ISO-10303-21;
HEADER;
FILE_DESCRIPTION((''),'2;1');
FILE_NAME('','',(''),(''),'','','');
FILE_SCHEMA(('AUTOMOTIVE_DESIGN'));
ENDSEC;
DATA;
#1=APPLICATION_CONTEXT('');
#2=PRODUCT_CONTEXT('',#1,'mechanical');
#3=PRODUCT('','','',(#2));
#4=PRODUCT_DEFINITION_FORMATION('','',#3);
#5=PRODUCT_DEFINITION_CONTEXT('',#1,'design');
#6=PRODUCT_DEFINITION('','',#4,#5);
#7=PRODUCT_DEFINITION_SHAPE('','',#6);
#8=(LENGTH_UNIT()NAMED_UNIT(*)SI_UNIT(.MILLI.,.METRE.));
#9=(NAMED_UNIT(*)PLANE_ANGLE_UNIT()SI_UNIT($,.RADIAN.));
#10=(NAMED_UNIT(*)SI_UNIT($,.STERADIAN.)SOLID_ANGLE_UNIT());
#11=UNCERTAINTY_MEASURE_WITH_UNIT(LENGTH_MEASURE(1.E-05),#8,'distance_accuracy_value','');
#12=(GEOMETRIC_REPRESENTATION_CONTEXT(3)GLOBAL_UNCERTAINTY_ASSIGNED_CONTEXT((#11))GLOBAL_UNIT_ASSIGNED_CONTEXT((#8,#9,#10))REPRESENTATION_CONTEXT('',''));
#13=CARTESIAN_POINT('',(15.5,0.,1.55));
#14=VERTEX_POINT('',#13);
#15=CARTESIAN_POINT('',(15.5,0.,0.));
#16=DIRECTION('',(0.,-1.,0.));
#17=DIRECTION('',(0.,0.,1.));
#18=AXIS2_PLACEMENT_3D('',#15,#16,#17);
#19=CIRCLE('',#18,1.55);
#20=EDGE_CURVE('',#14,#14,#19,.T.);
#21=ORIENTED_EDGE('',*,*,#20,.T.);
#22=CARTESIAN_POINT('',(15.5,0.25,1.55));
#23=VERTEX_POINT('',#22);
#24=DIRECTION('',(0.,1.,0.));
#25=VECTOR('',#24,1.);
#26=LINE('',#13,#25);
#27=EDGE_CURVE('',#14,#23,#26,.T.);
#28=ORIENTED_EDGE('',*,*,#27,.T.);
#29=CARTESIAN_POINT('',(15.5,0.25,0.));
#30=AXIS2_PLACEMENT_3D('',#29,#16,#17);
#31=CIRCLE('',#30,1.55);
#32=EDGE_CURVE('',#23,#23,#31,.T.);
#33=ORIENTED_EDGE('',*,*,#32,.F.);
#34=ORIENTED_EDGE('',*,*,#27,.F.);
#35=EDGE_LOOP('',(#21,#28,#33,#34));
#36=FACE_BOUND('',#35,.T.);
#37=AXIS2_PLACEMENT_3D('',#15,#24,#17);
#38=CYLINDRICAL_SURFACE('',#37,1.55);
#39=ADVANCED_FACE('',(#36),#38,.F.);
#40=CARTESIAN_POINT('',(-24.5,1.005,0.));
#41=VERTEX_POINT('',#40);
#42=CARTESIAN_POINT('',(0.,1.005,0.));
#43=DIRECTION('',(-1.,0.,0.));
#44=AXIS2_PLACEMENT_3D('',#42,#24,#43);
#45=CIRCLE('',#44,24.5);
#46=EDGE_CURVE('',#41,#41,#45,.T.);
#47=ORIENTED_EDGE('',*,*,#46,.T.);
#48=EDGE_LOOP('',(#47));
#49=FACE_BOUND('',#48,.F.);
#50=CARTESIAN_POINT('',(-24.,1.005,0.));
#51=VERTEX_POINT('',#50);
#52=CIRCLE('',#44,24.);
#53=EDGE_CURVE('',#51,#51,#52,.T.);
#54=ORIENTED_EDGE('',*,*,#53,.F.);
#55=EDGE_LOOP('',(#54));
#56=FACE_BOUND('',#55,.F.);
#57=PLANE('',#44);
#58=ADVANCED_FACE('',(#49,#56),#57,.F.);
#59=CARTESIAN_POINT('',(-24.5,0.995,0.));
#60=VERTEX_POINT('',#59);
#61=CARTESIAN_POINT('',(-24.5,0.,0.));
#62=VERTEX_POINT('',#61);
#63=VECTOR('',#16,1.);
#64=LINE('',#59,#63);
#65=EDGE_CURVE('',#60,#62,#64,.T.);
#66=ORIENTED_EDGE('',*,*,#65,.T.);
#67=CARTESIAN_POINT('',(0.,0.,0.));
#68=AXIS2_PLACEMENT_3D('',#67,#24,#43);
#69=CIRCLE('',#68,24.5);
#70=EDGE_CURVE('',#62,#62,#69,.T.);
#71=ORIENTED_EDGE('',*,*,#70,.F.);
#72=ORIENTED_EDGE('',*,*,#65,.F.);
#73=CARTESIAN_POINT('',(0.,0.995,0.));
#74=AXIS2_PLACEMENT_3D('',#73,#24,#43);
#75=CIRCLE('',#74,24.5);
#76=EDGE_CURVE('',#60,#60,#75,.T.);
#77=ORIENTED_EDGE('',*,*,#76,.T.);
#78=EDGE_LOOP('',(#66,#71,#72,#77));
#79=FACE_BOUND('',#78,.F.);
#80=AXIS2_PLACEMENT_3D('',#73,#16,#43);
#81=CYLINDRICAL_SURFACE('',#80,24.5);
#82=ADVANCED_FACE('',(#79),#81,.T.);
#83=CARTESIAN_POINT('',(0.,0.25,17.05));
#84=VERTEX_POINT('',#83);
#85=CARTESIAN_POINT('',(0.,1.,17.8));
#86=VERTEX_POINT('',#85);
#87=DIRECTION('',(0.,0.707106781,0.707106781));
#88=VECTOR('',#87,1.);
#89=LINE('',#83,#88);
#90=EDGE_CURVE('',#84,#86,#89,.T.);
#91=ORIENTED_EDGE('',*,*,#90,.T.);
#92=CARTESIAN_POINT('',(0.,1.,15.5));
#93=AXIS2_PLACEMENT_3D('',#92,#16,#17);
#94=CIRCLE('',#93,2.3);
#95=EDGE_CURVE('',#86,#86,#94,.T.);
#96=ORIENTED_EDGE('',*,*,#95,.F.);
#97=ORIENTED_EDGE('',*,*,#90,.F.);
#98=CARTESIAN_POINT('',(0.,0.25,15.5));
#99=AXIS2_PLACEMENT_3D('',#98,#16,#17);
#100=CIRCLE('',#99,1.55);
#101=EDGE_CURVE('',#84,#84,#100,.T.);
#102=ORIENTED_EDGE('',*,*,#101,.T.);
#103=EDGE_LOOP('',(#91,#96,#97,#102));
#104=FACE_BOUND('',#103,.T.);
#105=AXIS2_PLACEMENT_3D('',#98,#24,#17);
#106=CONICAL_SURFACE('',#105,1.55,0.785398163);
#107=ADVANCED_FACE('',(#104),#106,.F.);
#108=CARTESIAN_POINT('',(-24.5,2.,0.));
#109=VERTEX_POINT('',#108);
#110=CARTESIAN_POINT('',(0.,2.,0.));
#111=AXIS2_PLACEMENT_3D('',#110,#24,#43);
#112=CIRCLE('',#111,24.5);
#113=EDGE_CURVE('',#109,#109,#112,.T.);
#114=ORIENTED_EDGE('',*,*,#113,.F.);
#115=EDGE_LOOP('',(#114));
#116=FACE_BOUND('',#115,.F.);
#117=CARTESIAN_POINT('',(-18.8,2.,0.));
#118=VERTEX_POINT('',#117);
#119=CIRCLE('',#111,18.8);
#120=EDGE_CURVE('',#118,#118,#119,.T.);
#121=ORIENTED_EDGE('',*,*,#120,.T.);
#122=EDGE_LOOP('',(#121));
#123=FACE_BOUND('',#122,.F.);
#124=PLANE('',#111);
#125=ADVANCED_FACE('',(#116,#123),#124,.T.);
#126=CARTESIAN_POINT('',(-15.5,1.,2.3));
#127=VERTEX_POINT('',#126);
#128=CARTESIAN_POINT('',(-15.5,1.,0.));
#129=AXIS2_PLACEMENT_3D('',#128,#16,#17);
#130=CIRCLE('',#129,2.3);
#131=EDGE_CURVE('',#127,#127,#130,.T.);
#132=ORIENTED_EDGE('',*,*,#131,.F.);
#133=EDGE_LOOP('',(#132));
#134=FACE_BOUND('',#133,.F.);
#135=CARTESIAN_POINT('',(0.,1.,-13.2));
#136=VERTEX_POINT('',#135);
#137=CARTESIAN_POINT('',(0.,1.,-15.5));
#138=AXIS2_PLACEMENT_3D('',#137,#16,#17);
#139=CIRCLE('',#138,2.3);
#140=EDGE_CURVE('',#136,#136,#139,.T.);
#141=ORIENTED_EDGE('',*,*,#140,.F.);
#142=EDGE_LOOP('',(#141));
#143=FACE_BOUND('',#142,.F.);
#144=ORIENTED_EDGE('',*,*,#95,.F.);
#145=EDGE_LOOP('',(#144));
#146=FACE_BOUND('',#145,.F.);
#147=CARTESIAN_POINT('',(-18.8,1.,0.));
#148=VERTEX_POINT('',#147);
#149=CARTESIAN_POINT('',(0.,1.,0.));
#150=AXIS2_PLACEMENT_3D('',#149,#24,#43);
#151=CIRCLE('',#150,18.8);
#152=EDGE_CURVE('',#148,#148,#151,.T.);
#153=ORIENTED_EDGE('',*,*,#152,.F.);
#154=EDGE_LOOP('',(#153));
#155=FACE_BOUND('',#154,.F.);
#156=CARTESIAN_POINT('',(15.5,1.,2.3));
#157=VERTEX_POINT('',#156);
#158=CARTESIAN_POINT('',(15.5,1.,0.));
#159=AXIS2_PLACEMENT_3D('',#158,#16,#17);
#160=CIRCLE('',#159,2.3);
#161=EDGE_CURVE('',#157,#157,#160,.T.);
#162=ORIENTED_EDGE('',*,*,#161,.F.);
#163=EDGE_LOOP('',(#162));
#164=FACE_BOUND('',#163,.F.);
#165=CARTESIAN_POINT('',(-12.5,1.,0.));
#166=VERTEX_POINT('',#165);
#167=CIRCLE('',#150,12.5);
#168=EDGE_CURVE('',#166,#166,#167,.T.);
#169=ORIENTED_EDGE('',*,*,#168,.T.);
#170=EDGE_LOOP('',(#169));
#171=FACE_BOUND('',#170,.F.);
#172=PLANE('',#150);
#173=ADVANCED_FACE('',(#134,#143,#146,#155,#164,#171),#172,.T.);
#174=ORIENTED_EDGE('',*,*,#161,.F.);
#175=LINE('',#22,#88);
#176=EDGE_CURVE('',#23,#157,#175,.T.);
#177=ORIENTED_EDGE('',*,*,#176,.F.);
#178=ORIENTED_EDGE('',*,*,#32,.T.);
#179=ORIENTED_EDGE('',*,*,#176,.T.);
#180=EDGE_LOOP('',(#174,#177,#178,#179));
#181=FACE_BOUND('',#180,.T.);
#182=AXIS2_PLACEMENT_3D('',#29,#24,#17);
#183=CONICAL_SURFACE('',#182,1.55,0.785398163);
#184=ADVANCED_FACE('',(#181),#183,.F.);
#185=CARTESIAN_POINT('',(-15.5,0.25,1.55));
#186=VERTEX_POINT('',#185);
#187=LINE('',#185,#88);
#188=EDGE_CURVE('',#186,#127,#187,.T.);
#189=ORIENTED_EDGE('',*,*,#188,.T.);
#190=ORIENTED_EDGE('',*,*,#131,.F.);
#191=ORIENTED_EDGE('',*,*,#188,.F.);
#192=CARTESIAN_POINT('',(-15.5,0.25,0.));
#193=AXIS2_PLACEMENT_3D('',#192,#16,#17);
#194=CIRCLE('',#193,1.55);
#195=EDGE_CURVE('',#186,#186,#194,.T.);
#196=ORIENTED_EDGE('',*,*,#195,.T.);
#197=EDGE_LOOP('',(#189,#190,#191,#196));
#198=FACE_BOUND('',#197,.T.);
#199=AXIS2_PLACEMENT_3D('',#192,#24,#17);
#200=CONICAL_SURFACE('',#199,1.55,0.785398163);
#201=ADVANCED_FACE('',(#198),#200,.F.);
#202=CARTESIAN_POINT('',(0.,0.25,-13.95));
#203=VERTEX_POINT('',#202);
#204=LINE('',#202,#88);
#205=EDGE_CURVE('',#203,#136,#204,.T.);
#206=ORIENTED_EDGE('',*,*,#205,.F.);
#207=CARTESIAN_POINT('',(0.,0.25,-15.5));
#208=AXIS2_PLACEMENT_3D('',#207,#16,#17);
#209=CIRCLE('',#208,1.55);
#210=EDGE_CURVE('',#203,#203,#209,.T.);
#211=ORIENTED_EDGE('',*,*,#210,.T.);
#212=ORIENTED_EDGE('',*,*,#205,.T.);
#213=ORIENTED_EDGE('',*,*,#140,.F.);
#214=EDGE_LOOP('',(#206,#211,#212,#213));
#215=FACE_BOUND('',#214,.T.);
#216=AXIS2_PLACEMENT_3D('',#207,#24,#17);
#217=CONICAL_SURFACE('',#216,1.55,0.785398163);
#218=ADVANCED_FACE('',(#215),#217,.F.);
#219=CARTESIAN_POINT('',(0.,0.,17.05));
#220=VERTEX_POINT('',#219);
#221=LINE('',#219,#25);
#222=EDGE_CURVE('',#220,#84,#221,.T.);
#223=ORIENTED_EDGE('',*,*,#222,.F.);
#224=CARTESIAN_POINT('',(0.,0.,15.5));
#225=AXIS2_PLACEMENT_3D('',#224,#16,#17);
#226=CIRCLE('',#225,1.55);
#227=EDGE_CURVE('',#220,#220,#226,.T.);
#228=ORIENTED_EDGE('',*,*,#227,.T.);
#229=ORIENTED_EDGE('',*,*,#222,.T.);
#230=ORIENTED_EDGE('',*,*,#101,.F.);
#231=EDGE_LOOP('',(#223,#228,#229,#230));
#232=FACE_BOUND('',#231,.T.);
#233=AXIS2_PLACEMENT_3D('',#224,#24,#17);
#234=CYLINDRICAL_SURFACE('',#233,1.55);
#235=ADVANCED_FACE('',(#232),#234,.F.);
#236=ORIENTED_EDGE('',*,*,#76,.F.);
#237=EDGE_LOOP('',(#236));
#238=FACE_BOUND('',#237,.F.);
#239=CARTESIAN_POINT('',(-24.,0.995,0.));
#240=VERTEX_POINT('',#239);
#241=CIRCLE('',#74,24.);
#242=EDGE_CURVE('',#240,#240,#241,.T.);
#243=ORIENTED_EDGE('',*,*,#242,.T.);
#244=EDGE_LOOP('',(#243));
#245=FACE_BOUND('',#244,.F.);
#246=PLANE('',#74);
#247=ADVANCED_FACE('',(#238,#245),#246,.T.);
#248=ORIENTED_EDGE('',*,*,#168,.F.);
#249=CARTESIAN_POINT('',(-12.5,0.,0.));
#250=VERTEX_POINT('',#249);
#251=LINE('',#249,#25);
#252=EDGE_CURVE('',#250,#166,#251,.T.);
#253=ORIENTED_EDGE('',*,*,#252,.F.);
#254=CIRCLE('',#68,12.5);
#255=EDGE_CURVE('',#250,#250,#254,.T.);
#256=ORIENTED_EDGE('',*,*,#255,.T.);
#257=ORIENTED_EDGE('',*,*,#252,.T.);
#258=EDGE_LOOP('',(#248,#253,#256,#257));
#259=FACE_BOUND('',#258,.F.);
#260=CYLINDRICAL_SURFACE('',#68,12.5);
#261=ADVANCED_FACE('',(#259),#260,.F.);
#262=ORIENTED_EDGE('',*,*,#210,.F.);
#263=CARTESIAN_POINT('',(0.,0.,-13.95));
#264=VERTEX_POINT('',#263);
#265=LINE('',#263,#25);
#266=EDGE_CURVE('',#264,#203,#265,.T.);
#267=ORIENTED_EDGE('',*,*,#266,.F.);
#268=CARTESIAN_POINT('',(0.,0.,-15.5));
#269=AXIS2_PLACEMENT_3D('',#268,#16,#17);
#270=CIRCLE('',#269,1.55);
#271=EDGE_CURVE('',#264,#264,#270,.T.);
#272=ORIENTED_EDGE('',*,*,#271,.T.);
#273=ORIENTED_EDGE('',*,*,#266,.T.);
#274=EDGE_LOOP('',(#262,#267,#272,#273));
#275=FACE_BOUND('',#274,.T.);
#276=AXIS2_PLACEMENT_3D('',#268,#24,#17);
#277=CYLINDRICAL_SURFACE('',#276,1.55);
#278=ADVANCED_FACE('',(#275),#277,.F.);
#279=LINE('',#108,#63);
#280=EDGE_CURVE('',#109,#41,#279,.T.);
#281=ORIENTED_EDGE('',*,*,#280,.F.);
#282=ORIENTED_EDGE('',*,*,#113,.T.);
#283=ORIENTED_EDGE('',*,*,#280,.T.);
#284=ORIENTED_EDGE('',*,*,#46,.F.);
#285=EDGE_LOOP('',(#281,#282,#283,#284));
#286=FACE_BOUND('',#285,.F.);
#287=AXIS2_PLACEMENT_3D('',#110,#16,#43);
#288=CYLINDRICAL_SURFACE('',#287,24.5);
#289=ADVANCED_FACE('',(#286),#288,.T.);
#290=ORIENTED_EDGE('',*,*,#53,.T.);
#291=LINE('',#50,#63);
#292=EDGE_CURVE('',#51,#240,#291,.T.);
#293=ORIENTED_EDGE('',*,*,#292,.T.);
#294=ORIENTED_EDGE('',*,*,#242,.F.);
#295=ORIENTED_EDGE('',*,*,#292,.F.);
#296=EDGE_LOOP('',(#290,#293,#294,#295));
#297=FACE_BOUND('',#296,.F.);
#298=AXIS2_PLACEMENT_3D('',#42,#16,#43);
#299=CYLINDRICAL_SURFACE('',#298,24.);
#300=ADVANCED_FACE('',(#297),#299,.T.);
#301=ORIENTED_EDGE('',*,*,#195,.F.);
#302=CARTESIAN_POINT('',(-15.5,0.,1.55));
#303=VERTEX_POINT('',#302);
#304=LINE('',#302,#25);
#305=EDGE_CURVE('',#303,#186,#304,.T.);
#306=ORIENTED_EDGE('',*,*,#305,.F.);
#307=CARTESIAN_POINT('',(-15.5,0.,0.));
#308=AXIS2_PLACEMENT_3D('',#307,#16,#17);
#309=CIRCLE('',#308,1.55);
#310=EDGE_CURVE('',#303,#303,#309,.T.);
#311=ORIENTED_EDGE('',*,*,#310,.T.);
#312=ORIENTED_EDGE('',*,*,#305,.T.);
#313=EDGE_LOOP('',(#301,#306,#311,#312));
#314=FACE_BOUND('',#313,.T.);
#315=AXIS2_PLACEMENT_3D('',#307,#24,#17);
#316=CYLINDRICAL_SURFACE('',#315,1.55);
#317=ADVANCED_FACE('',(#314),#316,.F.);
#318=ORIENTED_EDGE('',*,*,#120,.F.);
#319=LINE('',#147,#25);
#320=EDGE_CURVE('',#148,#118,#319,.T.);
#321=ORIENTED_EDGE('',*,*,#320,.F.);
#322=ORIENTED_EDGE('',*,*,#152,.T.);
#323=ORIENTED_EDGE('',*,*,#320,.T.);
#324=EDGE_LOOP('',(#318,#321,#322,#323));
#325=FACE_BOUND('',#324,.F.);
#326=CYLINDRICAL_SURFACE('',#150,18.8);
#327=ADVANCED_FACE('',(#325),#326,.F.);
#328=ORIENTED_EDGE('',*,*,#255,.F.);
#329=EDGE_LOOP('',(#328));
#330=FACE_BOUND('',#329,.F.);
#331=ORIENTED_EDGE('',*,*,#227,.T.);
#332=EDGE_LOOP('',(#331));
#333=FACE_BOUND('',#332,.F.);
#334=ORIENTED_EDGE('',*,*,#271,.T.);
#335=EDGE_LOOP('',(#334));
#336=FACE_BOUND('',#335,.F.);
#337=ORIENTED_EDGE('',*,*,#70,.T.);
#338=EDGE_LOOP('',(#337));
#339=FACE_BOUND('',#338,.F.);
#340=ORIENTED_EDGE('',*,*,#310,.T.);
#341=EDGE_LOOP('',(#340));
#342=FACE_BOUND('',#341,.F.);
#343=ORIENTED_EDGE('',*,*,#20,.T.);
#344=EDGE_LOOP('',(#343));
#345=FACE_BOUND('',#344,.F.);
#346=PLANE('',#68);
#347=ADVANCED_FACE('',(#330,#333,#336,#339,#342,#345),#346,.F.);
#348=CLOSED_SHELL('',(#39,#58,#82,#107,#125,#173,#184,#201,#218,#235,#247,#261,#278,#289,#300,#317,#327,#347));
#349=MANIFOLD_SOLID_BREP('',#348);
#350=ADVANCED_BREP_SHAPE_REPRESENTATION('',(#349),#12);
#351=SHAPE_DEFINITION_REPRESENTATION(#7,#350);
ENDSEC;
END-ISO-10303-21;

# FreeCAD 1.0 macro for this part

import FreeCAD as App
import Part
import Sketcher

V = App.Vector
Q = App.Units.Quantity

doc = App.newDocument("Part")
body = doc.addObject("PartDesign::Body", "Body")

# Sketch on XY plane
sketch1 = body.newObject("Sketcher::SketchObject", "Sketch")
sketch1.AttachmentSupport = (doc.getObject("XY_Plane"), [""])
sketch1.MapMode = "FlatFace"
sketch1.addGeometry(Part.LineSegment(V(-24.5, 0, 0), V(-12.5, 0, 0)), False)
sketch1.addGeometry(Part.LineSegment(V(-12.5, 0, 0), V(-12.5, 1, 0)), False)
sketch1.addGeometry(Part.LineSegment(V(-12.5, 1, 0), V(-18.8, 1, 0)), False)
sketch1.addGeometry(Part.LineSegment(V(-18.8, 1, 0), V(-18.8, 2, 0)), False)
sketch1.addGeometry(Part.LineSegment(V(-18.8, 2, 0), V(-24.5, 2, 0)), False)
sketch1.addGeometry(Part.LineSegment(V(-24.5, 2, 0), V(-24.5, 1.005, 0)), False)
sketch1.addGeometry(Part.LineSegment(V(-24.5, 1.005, 0), V(-24, 1.005, 0)), False)
sketch1.addGeometry(Part.LineSegment(V(-24, 1.005, 0), V(-24, 0.995, 0)), False)
sketch1.addGeometry(Part.LineSegment(V(-24, 0.995, 0), V(-24.5, 0.995, 0)), False)
sketch1.addGeometry(Part.LineSegment(V(-24.5, 0.995, 0), V(-24.5, 0, 0)), False)
sketch1.addConstraint(Sketcher.Constraint("Coincident", 0, 2, 1, 1))
sketch1.addConstraint(Sketcher.Constraint("Coincident", 1, 2, 2, 1))
sketch1.addConstraint(Sketcher.Constraint("Coincident", 2, 2, 3, 1))
sketch1.addConstraint(Sketcher.Constraint("Coincident", 3, 2, 4, 1))
sketch1.addConstraint(Sketcher.Constraint("Coincident", 4, 2, 5, 1))
sketch1.addConstraint(Sketcher.Constraint("Coincident", 5, 2, 6, 1))
sketch1.addConstraint(Sketcher.Constraint("Coincident", 6, 2, 7, 1))
sketch1.addConstraint(Sketcher.Constraint("Coincident", 7, 2, 8, 1))
sketch1.addConstraint(Sketcher.Constraint("Coincident", 8, 2, 9, 1))
sketch1.addConstraint(Sketcher.Constraint("Coincident", 9, 2, 0, 1))
sketch1.addConstraint(Sketcher.Constraint("Horizontal", 0))
sketch1.addConstraint(Sketcher.Constraint("Vertical", 1))
sketch1.addConstraint(Sketcher.Constraint("Horizontal", 2))
sketch1.addConstraint(Sketcher.Constraint("Vertical", 3))
sketch1.addConstraint(Sketcher.Constraint("Horizontal", 4))
sketch1.addConstraint(Sketcher.Constraint("Vertical", 5))
sketch1.addConstraint(Sketcher.Constraint("Horizontal", 6))
sketch1.addConstraint(Sketcher.Constraint("Vertical", 7))
sketch1.addConstraint(Sketcher.Constraint("Horizontal", 8))
sketch1.addConstraint(Sketcher.Constraint("Vertical", 9))
sketch1.addConstraint(Sketcher.Constraint("PointOnObject", 0, 2, -1))
sketch1.addConstraint(Sketcher.Constraint("Vertical", 5, 2, 8, 2))
sketch1.addConstraint(Sketcher.Constraint("Equal", 1, 3))
sketch1.addConstraint(Sketcher.Constraint("Equal", 5, 9))
sketch1.addConstraint(Sketcher.Constraint("DistanceX", 0, 1, 0, 2, 12.0))
sketch1.addConstraint(Sketcher.Constraint("DistanceY", 1, 1, 1, 2, 1.0))
sketch1.addConstraint(Sketcher.Constraint("DistanceX", 2, 2, 2, 1, 6.3))
sketch1.addConstraint(Sketcher.Constraint("DistanceX", 6, 1, 6, 2, 0.5))
sketch1.addConstraint(Sketcher.Constraint("DistanceX", 6, 2, -1, 1, 24.0))
sketch1.addConstraint(Sketcher.Constraint("DistanceY", 7, 2, 7, 1, 0.01))
revolution = body.newObject("PartDesign::Revolution", "Revolution")
revolution.Profile = sketch1
revolution.ReferenceAxis = (sketch1, ["V_Axis"])
revolution.Angle = 360

# Sketch on YZ plane
sketch2 = body.newObject("Sketcher::SketchObject", "Sketch001")
sketch2.AttachmentSupport = (doc.getObject("YZ_Plane"), [""])
sketch2.MapMode = "FlatFace"
sketch2.addGeometry(Part.LineSegment(V(0, -15.5, 0), V(1, -15.5, 0)), False)
sketch2.addGeometry(Part.LineSegment(V(1, -15.5, 0), V(1, -13.2, 0)), False)
sketch2.addGeometry(Part.LineSegment(V(1, -13.2, 0), V(0.25, -13.95, 0)), False)
sketch2.addGeometry(Part.LineSegment(V(0.25, -13.95, 0), V(0, -13.95, 0)), False)
sketch2.addGeometry(Part.LineSegment(V(0, -13.95, 0), V(0, -15.5, 0)), False)
sketch2.addGeometry(Part.LineSegment(V(1, -15.5, 0), V(0, -15.5, 0)), True)  # axis
sketch2.addConstraint(Sketcher.Constraint("Coincident", 0, 2, 1, 1))
sketch2.addConstraint(Sketcher.Constraint("Coincident", 1, 2, 2, 1))
sketch2.addConstraint(Sketcher.Constraint("Coincident", 2, 2, 3, 1))
sketch2.addConstraint(Sketcher.Constraint("Coincident", 3, 2, 4, 1))
sketch2.addConstraint(Sketcher.Constraint("Coincident", 4, 2, 0, 1))
sketch2.addConstraint(Sketcher.Constraint("Horizontal", 0))
sketch2.addConstraint(Sketcher.Constraint("Vertical", 1))
sketch2.addConstraint(Sketcher.Constraint("Horizontal", 3))
sketch2.addConstraint(Sketcher.Constraint("Vertical", 4))
sketch2.addConstraint(Sketcher.Constraint("Horizontal", 5))
sketch2.addConstraint(Sketcher.Constraint("Coincident", 5, 1, 0, 2))
sketch2.addConstraint(Sketcher.Constraint("PointOnObject", 3, 2, -2))
sketch2.addConstraint(Sketcher.Constraint("PointOnObject", 5, 2, -2))
sketch2.addConstraint(Sketcher.Constraint("DistanceX", 0, 1, 0, 2, 1.0))
sketch2.addConstraint(Sketcher.Constraint("Angle", 2, Q("-135 deg")))
sketch2.addConstraint(Sketcher.Constraint("DistanceY", 1, 1, 1, 2, 2.3))
sketch2.addConstraint(Sketcher.Constraint("DistanceX", 3, 2, 3, 1, 0.25))
sketch2.addConstraint(Sketcher.Constraint("DistanceY", 0, 2, -1, 1, 15.5))
groove = body.newObject("PartDesign::Groove", "Groove")
groove.Profile = sketch2
groove.ReferenceAxis = (sketch2, ["Axis0"])
groove.Angle = 360
doc.recompute()

datumline = body.newObject("PartDesign::Line", "DatumLine")
datumline.Placement = App.Placement(V(0, 0, 0), App.Rotation(V(0, 0, 1), V(-0.707106781, 0, 0.707106781)))
linearpattern = body.newObject("PartDesign::LinearPattern", "LinearPattern")
linearpattern.Originals = [groove]
linearpattern.Direction = (datumline, [""])
linearpattern.Mode = "offset"
linearpattern.Offset = 21.92031
linearpattern.Occurrences = 2
body.Tip = linearpattern
doc.recompute()

linearpattern2 = body.newObject("PartDesign::LinearPattern", "LinearPattern001")
linearpattern2.Originals = [groove]
linearpattern2.Direction = (doc.getObject("Z_Axis"), [""])
linearpattern2.Mode = "offset"
linearpattern2.Offset = 31
linearpattern2.Occurrences = 2
body.Tip = linearpattern2
doc.recompute()

datumline2 = body.newObject("PartDesign::Line", "DatumLine001")
datumline2.Placement = App.Placement(V(0, 0, 0), App.Rotation(V(0, 0, 1), V(0.707106781, 0, 0.707106781)))
linearpattern3 = body.newObject("PartDesign::LinearPattern", "LinearPattern002")
linearpattern3.Originals = [groove]
linearpattern3.Direction = (datumline2, [""])
linearpattern3.Mode = "offset"
linearpattern3.Offset = 21.92031
linearpattern3.Occurrences = 2
body.Tip = linearpattern3

doc.recompute()
